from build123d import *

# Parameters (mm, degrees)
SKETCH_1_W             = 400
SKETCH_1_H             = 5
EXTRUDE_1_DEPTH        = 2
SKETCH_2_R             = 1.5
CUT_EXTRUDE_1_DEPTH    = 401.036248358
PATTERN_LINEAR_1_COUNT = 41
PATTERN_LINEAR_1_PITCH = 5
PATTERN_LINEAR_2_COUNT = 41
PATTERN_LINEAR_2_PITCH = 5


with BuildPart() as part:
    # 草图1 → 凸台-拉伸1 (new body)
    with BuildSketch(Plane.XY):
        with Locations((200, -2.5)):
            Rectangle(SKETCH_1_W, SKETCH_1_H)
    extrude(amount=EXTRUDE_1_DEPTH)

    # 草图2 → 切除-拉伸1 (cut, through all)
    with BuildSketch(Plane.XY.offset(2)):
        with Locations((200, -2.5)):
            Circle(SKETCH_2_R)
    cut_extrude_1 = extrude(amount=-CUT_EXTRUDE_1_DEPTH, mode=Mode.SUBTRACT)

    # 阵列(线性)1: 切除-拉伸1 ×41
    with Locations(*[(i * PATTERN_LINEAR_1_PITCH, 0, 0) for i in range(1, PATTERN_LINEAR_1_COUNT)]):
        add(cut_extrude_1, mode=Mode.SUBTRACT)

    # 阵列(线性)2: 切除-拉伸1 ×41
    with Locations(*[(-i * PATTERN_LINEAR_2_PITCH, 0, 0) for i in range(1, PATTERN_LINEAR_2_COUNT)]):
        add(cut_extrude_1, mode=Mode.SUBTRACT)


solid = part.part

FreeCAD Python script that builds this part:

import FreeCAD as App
import Part
import Sketcher

V = App.Vector
Q = App.Units.Quantity

doc = App.newDocument("Part")
body = doc.addObject("PartDesign::Body", "Body")

sketch1 = body.newObject("Sketcher::SketchObject", "Sketch")
sketch1.AttachmentSupport = (doc.getObject("XY_Plane"), [""])
sketch1.MapMode = "FlatFace"
sketch1.addGeometry([
    Part.LineSegment(V(0, 0, 0), V(0, -5, 0)),
    Part.LineSegment(V(0, -5, 0), V(400, -5, 0)),
    Part.LineSegment(V(400, -5, 0), V(400, 0, 0)),
    Part.LineSegment(V(400, 0, 0), V(0, 0, 0)),
], False)
sketch1.addConstraint([
    Sketcher.Constraint("Coincident", 0, 2, 1, 1),
    Sketcher.Constraint("Coincident", 1, 2, 2, 1),
    Sketcher.Constraint("Coincident", 2, 2, 3, 1),
    Sketcher.Constraint("Coincident", 3, 2, 0, 1),
    Sketcher.Constraint("Vertical", 0),
    Sketcher.Constraint("Horizontal", 1),
    Sketcher.Constraint("Vertical", 2),
    Sketcher.Constraint("Horizontal", 3),
    Sketcher.Constraint("Coincident", 3, 2, -1, 1),
    Sketcher.Constraint("DistanceX", 1, 1, 1, 2, Q("400 mm")),
    Sketcher.Constraint("DistanceY", 0, 2, 0, 1, Q("5 mm")),
])
pad1 = body.newObject("PartDesign::Pad", "Pad")
pad1.Profile = sketch1
pad1.Length = 2

sketch2 = body.newObject("Sketcher::SketchObject", "Sketch001")
sketch2.AttachmentSupport = (doc.getObject("XY_Plane"), [""])
sketch2.MapMode = "FlatFace"
sketch2.AttachmentOffset = App.Placement(V(0, 0, 2), App.Rotation())
sketch2.addGeometry(Part.Circle(V(200, -2.5, 0), V(0, 0, 1), 1.5), False)
sketch2.addConstraint([
    Sketcher.Constraint("Diameter", 0, Q("3 mm")),
    Sketcher.Constraint("DistanceX", -1, 1, 0, 3, Q("200 mm")),
    Sketcher.Constraint("DistanceY", 0, 3, -1, 1, Q("2.5 mm")),
])
pocket1 = body.newObject("PartDesign::Pocket", "Pocket")
pocket1.Profile = sketch2
pocket1.Type = "ThroughAll"
doc.recompute()

linearpattern = body.newObject("PartDesign::LinearPattern", "LinearPattern")
linearpattern.Originals = [pocket1]
linearpattern.Direction = (doc.getObject("X_Axis"), [""])
linearpattern.Mode = "offset"
linearpattern.Offset = 5
linearpattern.Occurrences = 41
body.Tip = linearpattern
doc.recompute()

linearpattern2 = body.newObject("PartDesign::LinearPattern", "LinearPattern001")
linearpattern2.Originals = [pocket1]
linearpattern2.Direction = (doc.getObject("X_Axis"), [""])
linearpattern2.Mode = "offset"
linearpattern2.Offset = 5
linearpattern2.Occurrences = 41
linearpattern2.Reversed = True
body.Tip = linearpattern2

doc.recompute()
